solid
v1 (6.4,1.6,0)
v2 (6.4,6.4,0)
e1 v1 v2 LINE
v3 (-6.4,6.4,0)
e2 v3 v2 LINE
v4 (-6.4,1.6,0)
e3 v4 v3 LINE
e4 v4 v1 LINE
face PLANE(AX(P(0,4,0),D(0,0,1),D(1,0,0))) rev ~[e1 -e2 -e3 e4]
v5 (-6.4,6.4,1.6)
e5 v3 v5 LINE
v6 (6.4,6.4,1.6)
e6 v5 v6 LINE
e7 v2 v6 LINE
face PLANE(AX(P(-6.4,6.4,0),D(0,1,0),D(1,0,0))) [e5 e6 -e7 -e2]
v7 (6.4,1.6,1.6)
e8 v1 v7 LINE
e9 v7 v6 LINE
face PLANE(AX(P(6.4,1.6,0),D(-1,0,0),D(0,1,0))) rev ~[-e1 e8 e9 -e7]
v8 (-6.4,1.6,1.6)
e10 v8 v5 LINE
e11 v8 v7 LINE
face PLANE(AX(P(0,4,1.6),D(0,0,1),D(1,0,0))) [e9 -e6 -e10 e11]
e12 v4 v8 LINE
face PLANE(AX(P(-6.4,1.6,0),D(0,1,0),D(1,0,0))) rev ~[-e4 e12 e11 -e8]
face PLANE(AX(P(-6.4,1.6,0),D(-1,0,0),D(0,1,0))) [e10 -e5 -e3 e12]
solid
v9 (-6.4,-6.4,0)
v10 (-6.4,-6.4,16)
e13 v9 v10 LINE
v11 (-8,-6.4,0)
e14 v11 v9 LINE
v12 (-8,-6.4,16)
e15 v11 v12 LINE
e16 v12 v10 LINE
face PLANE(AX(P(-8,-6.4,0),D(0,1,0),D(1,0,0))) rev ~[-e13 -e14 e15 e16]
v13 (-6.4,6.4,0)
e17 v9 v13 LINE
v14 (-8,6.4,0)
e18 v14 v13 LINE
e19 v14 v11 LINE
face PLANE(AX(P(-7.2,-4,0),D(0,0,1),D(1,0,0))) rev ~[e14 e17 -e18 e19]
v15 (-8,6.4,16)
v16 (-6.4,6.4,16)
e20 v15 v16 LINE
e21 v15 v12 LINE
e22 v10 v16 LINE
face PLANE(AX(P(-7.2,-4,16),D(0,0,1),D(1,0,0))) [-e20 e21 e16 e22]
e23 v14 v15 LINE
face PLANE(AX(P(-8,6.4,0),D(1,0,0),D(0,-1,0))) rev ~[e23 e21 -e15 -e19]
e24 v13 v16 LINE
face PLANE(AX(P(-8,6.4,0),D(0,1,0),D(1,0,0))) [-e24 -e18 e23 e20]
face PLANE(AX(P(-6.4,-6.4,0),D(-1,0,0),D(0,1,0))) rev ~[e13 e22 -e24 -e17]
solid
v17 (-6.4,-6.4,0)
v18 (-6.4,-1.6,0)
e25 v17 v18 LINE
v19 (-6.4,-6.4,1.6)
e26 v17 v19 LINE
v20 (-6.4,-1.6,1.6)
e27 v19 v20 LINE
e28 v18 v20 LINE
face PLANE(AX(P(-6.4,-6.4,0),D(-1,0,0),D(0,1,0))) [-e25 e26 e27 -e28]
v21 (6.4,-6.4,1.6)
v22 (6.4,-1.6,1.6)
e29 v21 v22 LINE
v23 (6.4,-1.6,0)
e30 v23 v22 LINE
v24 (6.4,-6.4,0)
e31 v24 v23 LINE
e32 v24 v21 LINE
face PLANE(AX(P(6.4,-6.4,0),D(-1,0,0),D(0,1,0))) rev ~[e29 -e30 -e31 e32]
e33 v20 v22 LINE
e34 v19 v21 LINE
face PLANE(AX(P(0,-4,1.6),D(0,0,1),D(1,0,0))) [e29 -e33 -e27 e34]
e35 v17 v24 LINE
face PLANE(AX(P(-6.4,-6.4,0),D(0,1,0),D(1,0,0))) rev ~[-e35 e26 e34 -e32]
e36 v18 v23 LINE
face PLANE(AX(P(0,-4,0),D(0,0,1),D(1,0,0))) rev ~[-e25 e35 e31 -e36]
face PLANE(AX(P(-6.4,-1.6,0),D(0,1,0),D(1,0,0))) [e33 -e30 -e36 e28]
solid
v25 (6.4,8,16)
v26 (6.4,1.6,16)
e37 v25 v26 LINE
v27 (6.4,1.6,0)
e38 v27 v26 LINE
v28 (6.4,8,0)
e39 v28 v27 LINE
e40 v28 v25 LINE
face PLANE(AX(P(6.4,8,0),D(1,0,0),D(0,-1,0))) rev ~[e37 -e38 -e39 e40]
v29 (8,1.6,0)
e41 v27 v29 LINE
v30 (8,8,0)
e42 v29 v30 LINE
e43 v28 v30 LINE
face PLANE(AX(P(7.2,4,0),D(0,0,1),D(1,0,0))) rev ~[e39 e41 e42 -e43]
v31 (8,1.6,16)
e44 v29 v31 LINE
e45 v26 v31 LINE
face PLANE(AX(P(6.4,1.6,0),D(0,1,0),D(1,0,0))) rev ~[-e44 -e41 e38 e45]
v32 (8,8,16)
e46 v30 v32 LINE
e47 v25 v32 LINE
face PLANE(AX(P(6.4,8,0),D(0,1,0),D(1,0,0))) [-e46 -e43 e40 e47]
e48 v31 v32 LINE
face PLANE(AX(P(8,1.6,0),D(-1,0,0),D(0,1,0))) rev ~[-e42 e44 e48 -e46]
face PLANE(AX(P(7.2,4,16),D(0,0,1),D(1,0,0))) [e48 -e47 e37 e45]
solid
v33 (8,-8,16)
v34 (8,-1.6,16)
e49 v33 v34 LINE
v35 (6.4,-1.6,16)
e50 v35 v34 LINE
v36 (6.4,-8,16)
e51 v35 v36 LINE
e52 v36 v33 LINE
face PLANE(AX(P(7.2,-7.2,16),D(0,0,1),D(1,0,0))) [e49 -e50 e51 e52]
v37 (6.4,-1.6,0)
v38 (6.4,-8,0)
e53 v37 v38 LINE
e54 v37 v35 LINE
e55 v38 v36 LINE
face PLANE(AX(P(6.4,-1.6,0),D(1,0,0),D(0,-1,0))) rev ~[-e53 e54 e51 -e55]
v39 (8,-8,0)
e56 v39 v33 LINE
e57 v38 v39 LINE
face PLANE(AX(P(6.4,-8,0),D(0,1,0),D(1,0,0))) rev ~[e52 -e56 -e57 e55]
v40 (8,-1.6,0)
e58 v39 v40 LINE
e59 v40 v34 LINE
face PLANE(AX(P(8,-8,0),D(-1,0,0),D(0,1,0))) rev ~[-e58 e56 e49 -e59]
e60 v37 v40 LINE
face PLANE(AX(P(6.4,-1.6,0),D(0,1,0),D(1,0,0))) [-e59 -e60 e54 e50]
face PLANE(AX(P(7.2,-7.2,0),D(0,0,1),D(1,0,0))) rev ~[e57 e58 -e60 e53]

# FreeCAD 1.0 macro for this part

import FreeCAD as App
import Part
import Sketcher
from FreeCAD import Vector
Q = App.Units.Quantity


def add_polygon(sketch, points):
    """Adds a closed chain of lines whose ends are joined by coincident constraints."""
    first, n = sketch.GeometryCount, len(points)
    for a, b in zip(points, points[1:] + points[:1]):
        sketch.addGeometry(Part.LineSegment(App.Vector(*a, 0), App.Vector(*b, 0)), False)
    for i in range(n):
        sketch.addConstraint(Sketcher.Constraint("Coincident", first + i, 2, first + (i + 1) % n, 1))

doc = App.newDocument("Part")
body = doc.addObject("PartDesign::Body", "Body")

sketch1 = doc.addObject("Sketcher::SketchObject", "Sketch")
body.addObject(sketch1)
sketch1.AttachmentSupport = (doc.XY_Plane, [""])
sketch1.MapMode = "FlatFace"
add_polygon(sketch1, [(6.4, -8), (8, -8), (8, -1.6), (6.4, -1.6)])
sketch1.addConstraint([
    Sketcher.Constraint("Horizontal", 0),
    Sketcher.Constraint("Vertical", 1),
    Sketcher.Constraint("Horizontal", 2),
    Sketcher.Constraint("Vertical", 3),
    Sketcher.Constraint("DistanceX", 0, 1, 0, 2, Q("1.6 mm")),
    Sketcher.Constraint("DistanceY", 1, 1, 1, 2, Q("6.4 mm")),
    Sketcher.Constraint("DistanceX", -1, 1, 0, 2, Q("8 mm")),
    Sketcher.Constraint("DistanceY", 0, 2, -1, 1, Q("8 mm")),
])
pad1 = doc.addObject("PartDesign::Pad", "Pad")
body.addObject(pad1)
pad1.Profile = sketch1
pad1.Length = 16
body2 = doc.addObject("PartDesign::Body", "Body001")

sketch2 = doc.addObject("Sketcher::SketchObject", "Sketch001")
body2.addObject(sketch2)
sketch2.AttachmentSupport = (doc.getObject("XY_Plane001"), [""])
sketch2.MapMode = "FlatFace"
add_polygon(sketch2, [(-8, -6.4), (-6.4, -6.4), (-6.4, 6.4), (-8, 6.4)])
sketch2.addConstraint([
    Sketcher.Constraint("Horizontal", 0),
    Sketcher.Constraint("Vertical", 1),
    Sketcher.Constraint("Horizontal", 2),
    Sketcher.Constraint("Vertical", 3),
    Sketcher.Constraint("DistanceX", 0, 1, 0, 2, Q("1.6 mm")),
    Sketcher.Constraint("DistanceY", 1, 1, 1, 2, Q("12.8 mm")),
    Sketcher.Constraint("DistanceX", 2, 2, -1, 1, Q("8 mm")),
    Sketcher.Constraint("DistanceY", 0, 2, -1, 1, Q("6.4 mm")),
])
pad2 = doc.addObject("PartDesign::Pad", "Pad001")
body2.addObject(pad2)
pad2.Profile = sketch2
pad2.Length = 16
body3 = doc.addObject("PartDesign::Body", "Body002")

sketch3 = doc.addObject("Sketcher::SketchObject", "Sketch002")
body3.addObject(sketch3)
sketch3.AttachmentSupport = (doc.getObject("XY_Plane002"), [""])
sketch3.MapMode = "FlatFace"
add_polygon(sketch3, [(6.4, 1.6), (8, 1.6), (8, 8), (6.4, 8)])
sketch3.addConstraint([
    Sketcher.Constraint("Horizontal", 0),
    Sketcher.Constraint("Vertical", 1),
    Sketcher.Constraint("Horizontal", 2),
    Sketcher.Constraint("Vertical", 3),
    Sketcher.Constraint("DistanceX", 0, 1, 0, 2, Q("1.6 mm")),
    Sketcher.Constraint("DistanceY", 1, 1, 1, 2, Q("6.4 mm")),
    Sketcher.Constraint("DistanceX", -1, 1, 0, 2, Q("8 mm")),
    Sketcher.Constraint("DistanceY", -1, 1, 1, 2, Q("8 mm")),
])
pad3 = doc.addObject("PartDesign::Pad", "Pad002")
body3.addObject(pad3)
pad3.Profile = sketch3
pad3.Length = 16
body4 = doc.addObject("PartDesign::Body", "Body003")

sketch4 = doc.addObject("Sketcher::SketchObject", "Sketch003")
body4.addObject(sketch4)
sketch4.AttachmentSupport = (doc.getObject("XY_Plane003"), [""])
sketch4.MapMode = "FlatFace"
add_polygon(sketch4, [(-6.4, 6.4), (-6.4, 1.6), (6.4, 1.6), (6.4, 6.4)])
sketch4.addConstraint([
    Sketcher.Constraint("Vertical", 0),
    Sketcher.Constraint("Horizontal", 1),
    Sketcher.Constraint("Vertical", 2),
    Sketcher.Constraint("Horizontal", 3),
    Sketcher.Constraint("DistanceX", 1, 1, 1, 2, Q("12.8 mm")),
    Sketcher.Constraint("DistanceY", 0, 2, 0, 1, Q("4.8 mm")),
    Sketcher.Constraint("DistanceX", 0, 2, -1, 1, Q("6.4 mm")),
    Sketcher.Constraint("DistanceY", -1, 1, 0, 2, Q("1.6 mm")),
])
pad4 = doc.addObject("PartDesign::Pad", "Pad003")
body4.addObject(pad4)
pad4.Profile = sketch4
pad4.Length = 1.6
body5 = doc.addObject("PartDesign::Body", "Body004")

sketch5 = doc.addObject("Sketcher::SketchObject", "Sketch004")
body5.addObject(sketch5)
sketch5.AttachmentSupport = (doc.getObject("XY_Plane004"), [""])
sketch5.MapMode = "FlatFace"
add_polygon(sketch5, [(-6.4, -1.6), (-6.4, -6.4), (6.4, -6.4), (6.4, -1.6)])
sketch5.addConstraint([
    Sketcher.Constraint("Vertical", 0),
    Sketcher.Constraint("Horizontal", 1),
    Sketcher.Constraint("Vertical", 2),
    Sketcher.Constraint("Horizontal", 3),
    Sketcher.Constraint("DistanceX", 1, 1, 1, 2, Q("12.8 mm")),
    Sketcher.Constraint("DistanceY", 0, 2, 0, 1, Q("4.8 mm")),
    Sketcher.Constraint("DistanceX", 0, 2, -1, 1, Q("6.4 mm")),
    Sketcher.Constraint("DistanceY", 0, 2, -1, 1, Q("6.4 mm")),
])
pad5 = doc.addObject("PartDesign::Pad", "Pad004")
body5.addObject(pad5)
pad5.Profile = sketch5
pad5.Length = 1.6

doc.recompute()
